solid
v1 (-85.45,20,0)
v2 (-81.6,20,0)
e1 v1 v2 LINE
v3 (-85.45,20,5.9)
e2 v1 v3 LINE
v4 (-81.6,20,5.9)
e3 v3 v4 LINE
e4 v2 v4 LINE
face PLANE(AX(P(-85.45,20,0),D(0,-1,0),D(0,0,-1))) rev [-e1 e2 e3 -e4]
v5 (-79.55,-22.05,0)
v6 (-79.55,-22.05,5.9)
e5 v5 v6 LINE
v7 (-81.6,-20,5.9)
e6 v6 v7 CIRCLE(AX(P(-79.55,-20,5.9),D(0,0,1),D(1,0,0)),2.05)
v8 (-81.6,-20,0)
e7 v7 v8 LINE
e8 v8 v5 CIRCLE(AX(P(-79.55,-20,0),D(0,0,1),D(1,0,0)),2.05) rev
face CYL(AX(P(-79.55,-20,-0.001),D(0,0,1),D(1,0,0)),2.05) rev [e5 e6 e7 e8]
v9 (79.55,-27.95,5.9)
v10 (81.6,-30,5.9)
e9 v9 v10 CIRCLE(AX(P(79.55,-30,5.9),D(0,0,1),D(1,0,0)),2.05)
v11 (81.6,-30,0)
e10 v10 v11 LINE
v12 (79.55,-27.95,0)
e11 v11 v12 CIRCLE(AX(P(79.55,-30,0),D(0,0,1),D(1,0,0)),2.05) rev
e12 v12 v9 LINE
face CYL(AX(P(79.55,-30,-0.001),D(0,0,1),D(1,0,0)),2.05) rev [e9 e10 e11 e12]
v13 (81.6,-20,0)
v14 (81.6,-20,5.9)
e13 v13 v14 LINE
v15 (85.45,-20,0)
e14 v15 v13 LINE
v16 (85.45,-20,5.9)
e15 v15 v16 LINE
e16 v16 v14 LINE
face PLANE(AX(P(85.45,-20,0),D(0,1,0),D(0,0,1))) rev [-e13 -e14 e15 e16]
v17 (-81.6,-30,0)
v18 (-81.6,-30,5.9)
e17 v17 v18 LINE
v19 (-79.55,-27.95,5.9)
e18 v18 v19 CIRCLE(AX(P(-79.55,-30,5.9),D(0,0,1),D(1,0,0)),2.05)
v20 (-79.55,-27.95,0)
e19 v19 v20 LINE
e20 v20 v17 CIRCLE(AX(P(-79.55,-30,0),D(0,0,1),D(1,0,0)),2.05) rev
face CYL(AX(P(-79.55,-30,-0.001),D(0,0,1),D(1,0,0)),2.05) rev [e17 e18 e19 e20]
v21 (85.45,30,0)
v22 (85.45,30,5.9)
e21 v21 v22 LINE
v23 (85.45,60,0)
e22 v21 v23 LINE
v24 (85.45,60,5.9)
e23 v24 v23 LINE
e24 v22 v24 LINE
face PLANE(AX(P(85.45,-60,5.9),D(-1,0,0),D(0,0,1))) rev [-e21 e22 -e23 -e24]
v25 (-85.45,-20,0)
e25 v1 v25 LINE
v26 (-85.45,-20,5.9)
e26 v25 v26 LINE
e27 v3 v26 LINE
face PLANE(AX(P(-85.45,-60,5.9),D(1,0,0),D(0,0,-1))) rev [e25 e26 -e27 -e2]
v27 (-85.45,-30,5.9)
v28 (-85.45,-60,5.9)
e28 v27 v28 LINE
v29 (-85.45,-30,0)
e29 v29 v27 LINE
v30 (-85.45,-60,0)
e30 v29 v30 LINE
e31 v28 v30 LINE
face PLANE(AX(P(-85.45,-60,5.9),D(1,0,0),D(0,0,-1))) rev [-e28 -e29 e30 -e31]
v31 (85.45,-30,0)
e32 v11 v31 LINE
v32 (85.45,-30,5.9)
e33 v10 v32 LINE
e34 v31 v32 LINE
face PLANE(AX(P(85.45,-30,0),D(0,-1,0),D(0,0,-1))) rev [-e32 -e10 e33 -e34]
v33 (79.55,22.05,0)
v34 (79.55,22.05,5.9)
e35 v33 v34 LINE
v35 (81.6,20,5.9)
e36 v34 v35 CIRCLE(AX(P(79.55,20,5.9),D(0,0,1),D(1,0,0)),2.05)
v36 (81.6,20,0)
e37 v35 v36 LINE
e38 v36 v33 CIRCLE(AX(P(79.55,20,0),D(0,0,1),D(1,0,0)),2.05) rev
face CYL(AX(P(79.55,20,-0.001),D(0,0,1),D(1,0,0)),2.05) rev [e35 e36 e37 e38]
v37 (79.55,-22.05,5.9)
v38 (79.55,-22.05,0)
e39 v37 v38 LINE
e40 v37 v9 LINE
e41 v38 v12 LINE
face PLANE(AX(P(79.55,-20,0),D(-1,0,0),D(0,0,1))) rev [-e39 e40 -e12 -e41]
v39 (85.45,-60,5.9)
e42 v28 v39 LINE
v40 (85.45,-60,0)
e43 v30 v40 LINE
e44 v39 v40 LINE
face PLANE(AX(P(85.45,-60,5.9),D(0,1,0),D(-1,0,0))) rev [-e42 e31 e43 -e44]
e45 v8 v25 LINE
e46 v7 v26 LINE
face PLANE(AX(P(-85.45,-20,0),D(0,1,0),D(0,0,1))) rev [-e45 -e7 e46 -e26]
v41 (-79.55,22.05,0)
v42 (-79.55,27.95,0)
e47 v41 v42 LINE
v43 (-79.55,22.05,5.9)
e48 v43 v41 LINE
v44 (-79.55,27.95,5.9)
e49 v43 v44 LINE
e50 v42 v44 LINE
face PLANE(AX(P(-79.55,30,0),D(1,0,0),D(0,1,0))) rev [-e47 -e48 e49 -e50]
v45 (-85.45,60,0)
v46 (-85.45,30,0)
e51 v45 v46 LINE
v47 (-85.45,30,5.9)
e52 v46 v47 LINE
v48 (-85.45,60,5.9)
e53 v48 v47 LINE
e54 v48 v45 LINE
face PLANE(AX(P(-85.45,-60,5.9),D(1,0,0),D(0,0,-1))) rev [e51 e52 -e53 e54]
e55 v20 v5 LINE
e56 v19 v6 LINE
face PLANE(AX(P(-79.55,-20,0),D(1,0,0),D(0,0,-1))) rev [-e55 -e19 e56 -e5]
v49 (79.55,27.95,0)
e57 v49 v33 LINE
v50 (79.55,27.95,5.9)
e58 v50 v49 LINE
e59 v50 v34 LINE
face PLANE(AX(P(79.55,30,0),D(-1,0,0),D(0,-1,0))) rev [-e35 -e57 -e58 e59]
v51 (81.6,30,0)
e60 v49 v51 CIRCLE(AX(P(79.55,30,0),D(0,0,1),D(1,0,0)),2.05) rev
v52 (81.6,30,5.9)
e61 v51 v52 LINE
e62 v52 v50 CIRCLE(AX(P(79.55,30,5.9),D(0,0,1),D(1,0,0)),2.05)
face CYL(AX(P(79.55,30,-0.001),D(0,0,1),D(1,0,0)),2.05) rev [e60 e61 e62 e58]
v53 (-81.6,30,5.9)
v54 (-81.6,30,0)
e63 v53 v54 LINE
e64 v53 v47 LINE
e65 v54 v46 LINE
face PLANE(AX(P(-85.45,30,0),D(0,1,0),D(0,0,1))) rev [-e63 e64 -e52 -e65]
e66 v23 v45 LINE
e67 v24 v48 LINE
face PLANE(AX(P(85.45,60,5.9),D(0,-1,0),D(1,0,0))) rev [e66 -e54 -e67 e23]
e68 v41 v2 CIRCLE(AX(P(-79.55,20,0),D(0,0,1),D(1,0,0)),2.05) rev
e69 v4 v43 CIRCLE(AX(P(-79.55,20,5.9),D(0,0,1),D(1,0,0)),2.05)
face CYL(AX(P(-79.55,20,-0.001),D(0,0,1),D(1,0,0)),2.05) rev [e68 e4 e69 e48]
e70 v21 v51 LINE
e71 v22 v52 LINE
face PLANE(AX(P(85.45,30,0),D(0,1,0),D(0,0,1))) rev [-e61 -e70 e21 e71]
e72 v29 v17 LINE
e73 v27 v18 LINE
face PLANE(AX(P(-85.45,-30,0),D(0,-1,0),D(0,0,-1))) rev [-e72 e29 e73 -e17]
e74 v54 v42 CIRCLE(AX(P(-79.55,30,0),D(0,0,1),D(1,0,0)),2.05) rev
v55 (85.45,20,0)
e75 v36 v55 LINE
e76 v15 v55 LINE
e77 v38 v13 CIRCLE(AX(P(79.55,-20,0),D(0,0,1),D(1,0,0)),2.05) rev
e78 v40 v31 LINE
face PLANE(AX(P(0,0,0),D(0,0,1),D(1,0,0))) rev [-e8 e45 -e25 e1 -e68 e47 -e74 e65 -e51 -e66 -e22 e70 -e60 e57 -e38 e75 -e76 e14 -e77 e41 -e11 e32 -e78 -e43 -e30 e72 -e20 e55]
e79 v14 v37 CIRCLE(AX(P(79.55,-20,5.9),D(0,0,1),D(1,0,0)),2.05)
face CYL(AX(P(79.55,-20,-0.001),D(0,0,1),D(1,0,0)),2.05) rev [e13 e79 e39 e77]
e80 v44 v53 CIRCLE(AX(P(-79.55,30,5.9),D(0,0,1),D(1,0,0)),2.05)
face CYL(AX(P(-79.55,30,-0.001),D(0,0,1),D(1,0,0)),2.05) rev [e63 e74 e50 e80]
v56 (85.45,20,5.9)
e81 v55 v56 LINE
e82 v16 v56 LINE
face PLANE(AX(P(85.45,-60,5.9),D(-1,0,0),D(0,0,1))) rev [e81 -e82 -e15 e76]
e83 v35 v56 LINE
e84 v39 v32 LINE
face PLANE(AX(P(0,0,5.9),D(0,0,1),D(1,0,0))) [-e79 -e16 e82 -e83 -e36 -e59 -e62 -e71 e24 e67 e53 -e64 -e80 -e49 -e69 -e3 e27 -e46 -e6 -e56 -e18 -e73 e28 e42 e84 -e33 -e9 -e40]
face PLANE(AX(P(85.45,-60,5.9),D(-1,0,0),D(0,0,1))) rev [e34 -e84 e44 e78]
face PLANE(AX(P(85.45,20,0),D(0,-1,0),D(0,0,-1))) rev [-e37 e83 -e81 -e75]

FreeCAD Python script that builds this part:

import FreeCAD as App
import Part
import Sketcher

V = App.Vector
Q = App.Units.Quantity


def add_polygon(sketch, points):
    """Adds a closed chain of lines whose ends are joined by coincident constraints."""
    first, n = sketch.GeometryCount, len(points)
    for a, b in zip(points, points[1:] + points[:1]):
        sketch.addGeometry(Part.LineSegment(App.Vector(*a, 0), App.Vector(*b, 0)), False)
    for i in range(n):
        sketch.addConstraint(Sketcher.Constraint("Coincident", first + i, 2, first + (i + 1) % n, 1))

doc = App.newDocument("Part")
body = doc.addObject("PartDesign::Body", "Body")

sketch1 = body.newObject("Sketcher::SketchObject", "Sketch")
sketch1.AttachmentSupport = (doc.getObject("XY_Plane"), [""])
sketch1.MapMode = "FlatFace"
add_polygon(sketch1, [(-85, 60), (-85, -60), (85, -60), (85, 60)])
sketch1.addConstraint(Sketcher.Constraint("Vertical", 0))
sketch1.addConstraint(Sketcher.Constraint("Horizontal", 1))
sketch1.addConstraint(Sketcher.Constraint("Vertical", 2))
sketch1.addConstraint(Sketcher.Constraint("Horizontal", 3))
sketch1.addConstraint(Sketcher.Constraint("Symmetric", 0, 2, 2, 2, -1, 1))
sketch1.addConstraint(Sketcher.Constraint("DistanceY", 0, 2, 0, 1, Q("120 mm")))
sketch1.addConstraint(Sketcher.Constraint("DistanceX", 1, 1, 1, 2, Q("170.9 mm")))
pad1 = body.newObject("PartDesign::Pad", "Pad")
pad1.Profile = sketch1
pad1.Length = 5.9

sketch2 = body.newObject("Sketcher::SketchObject", "Sketch001")
sketch2.AttachmentSupport = (doc.getObject("XY_Plane"), [""])
sketch2.MapMode = "FlatFace"
sketch2.AttachmentOffset = App.Placement(V(0, 0, 5.9), App.Rotation())
add_polygon(sketch2, [(80, 30), (80, 20), (85, 20), (85, 30)])
add_polygon(sketch2, [(80, -20), (80, -30), (85, -30), (85, -20)])
add_polygon(sketch2, [(-85, -20), (-85, -30), (-80, -30), (-80, -20)])
add_polygon(sketch2, [(-85, 30), (-85, 20), (-80, 20), (-80, 30)])
sketch2.addConstraint(Sketcher.Constraint("Vertical", 0))
sketch2.addConstraint(Sketcher.Constraint("Horizontal", 1))
sketch2.addConstraint(Sketcher.Constraint("Vertical", 2))
sketch2.addConstraint(Sketcher.Constraint("Horizontal", 3))
sketch2.addConstraint(Sketcher.Constraint("Vertical", 4))
sketch2.addConstraint(Sketcher.Constraint("Horizontal", 5))
sketch2.addConstraint(Sketcher.Constraint("Vertical", 6))
sketch2.addConstraint(Sketcher.Constraint("Horizontal", 7))
sketch2.addConstraint(Sketcher.Constraint("Vertical", 8))
sketch2.addConstraint(Sketcher.Constraint("Horizontal", 9))
sketch2.addConstraint(Sketcher.Constraint("Vertical", 10))
sketch2.addConstraint(Sketcher.Constraint("Horizontal", 11))
sketch2.addConstraint(Sketcher.Constraint("Vertical", 12))
sketch2.addConstraint(Sketcher.Constraint("Horizontal", 13))
sketch2.addConstraint(Sketcher.Constraint("Vertical", 14))
sketch2.addConstraint(Sketcher.Constraint("Horizontal", 15))
sketch2.addConstraint(Sketcher.Constraint("Symmetric", 2, 2, 8, 2, -1, 1))
sketch2.addConstraint(Sketcher.Constraint("Symmetric", 0, 2, 10, 2, -1, 1))
sketch2.addConstraint(Sketcher.Constraint("Symmetric", 6, 2, 12, 2, -1, 1))
sketch2.addConstraint(Sketcher.Constraint("Symmetric", 4, 2, 14, 2, -1, 1))
sketch2.addConstraint(Sketcher.Constraint("Symmetric", 5, 2, 8, 2, -2))
sketch2.addConstraint(Sketcher.Constraint("Symmetric", 7, 2, 10, 2, -2))
sketch2.addConstraint(Sketcher.Constraint("DistanceY", 0, 2, 0, 1, Q("10 mm")))
sketch2.addConstraint(Sketcher.Constraint("DistanceX", 1, 1, 1, 2, Q("5.9 mm")))
sketch2.addConstraint(Sketcher.Constraint("DistanceY", -1, 1, 0, 2, Q("20 mm")))
sketch2.addConstraint(Sketcher.Constraint("DistanceX", 8, 2, 4, 2, Q("165 mm")))
pocket1 = body.newObject("PartDesign::Pocket", "Pocket")
pocket1.Profile = sketch2
pocket1.Type = "ThroughAll"

sketch3 = body.newObject("Sketcher::SketchObject", "Sketch002")
sketch3.AttachmentSupport = (doc.getObject("XY_Plane"), [""])
sketch3.MapMode = "FlatFace"
sketch3.AttachmentOffset = App.Placement(V(0, 0, 5.9), App.Rotation())
sketch3.addGeometry(Part.Circle(V(-79.5, 30, 0), V(0, 0, 1), 2), False)
sketch3.addConstraint(Sketcher.Constraint("Diameter", 0, Q("4.1 mm")))
sketch3.addConstraint(Sketcher.Constraint("DistanceY", -1, 1, 0, 3, Q("30 mm")))
sketch3.addConstraint(Sketcher.Constraint("DistanceX", 0, 3, -1, 1, Q("79.55 mm")))
pocket2 = body.newObject("PartDesign::Pocket", "Pocket001")
pocket2.Profile = sketch3
pocket2.Type = "UpToFirst"

sketch4 = body.newObject("Sketcher::SketchObject", "Sketch003")
sketch4.AttachmentSupport = (doc.getObject("XY_Plane"), [""])
sketch4.MapMode = "FlatFace"
sketch4.AttachmentOffset = App.Placement(V(0, 0, 5.9), App.Rotation())
sketch4.addGeometry(Part.Circle(V(-79.5, 20, 0), V(0, 0, 1), 2), False)
sketch4.addConstraint(Sketcher.Constraint("Diameter", 0, Q("4.1 mm")))
sketch4.addConstraint(Sketcher.Constraint("DistanceY", -1, 1, 0, 3, Q("20 mm")))
sketch4.addConstraint(Sketcher.Constraint("DistanceX", 0, 3, -1, 1, Q("79.55 mm")))
pocket3 = body.newObject("PartDesign::Pocket", "Pocket002")
pocket3.Profile = sketch4
pocket3.Type = "UpToFirst"

sketch5 = body.newObject("Sketcher::SketchObject", "Sketch004")
sketch5.AttachmentSupport = (doc.getObject("XY_Plane"), [""])
sketch5.MapMode = "FlatFace"
sketch5.AttachmentOffset = App.Placement(V(0, 0, 5.9), App.Rotation())
sketch5.addGeometry(Part.Circle(V(-79.5, -20, 0), V(0, 0, 1), 2), False)
sketch5.addConstraint(Sketcher.Constraint("Diameter", 0, Q("4.1 mm")))
sketch5.addConstraint(Sketcher.Constraint("DistanceY", 0, 3, -1, 1, Q("20 mm")))
sketch5.addConstraint(Sketcher.Constraint("DistanceX", 0, 3, -1, 1, Q("79.55 mm")))
pocket4 = body.newObject("PartDesign::Pocket", "Pocket003")
pocket4.Profile = sketch5
pocket4.Type = "UpToFirst"

sketch6 = body.newObject("Sketcher::SketchObject", "Sketch005")
sketch6.AttachmentSupport = (doc.getObject("XY_Plane"), [""])
sketch6.MapMode = "FlatFace"
sketch6.AttachmentOffset = App.Placement(V(0, 0, 5.9), App.Rotation())
sketch6.addGeometry(Part.Circle(V(-79.5, -30, 0), V(0, 0, 1), 2), False)
sketch6.addConstraint(Sketcher.Constraint("Diameter", 0, Q("4.1 mm")))
sketch6.addConstraint(Sketcher.Constraint("DistanceY", 0, 3, -1, 1, Q("30 mm")))
sketch6.addConstraint(Sketcher.Constraint("DistanceX", 0, 3, -1, 1, Q("79.55 mm")))
pocket5 = body.newObject("PartDesign::Pocket", "Pocket004")
pocket5.Profile = sketch6
pocket5.Type = "UpToFirst"

sketch7 = body.newObject("Sketcher::SketchObject", "Sketch006")
sketch7.AttachmentSupport = (doc.getObject("XY_Plane"), [""])
sketch7.MapMode = "FlatFace"
sketch7.AttachmentOffset = App.Placement(V(0, 0, 5.9), App.Rotation())
sketch7.addGeometry(Part.Circle(V(79.5, -20, 0), V(0, 0, 1), 2), False)
sketch7.addConstraint(Sketcher.Constraint("Diameter", 0, Q("4.1 mm")))
sketch7.addConstraint(Sketcher.Constraint("DistanceY", 0, 3, -1, 1, Q("20 mm")))
sketch7.addConstraint(Sketcher.Constraint("DistanceX", -1, 1, 0, 3, Q("79.55 mm")))
pocket6 = body.newObject("PartDesign::Pocket", "Pocket005")
pocket6.Profile = sketch7
pocket6.Type = "UpToFirst"

sketch8 = body.newObject("Sketcher::SketchObject", "Sketch007")
sketch8.AttachmentSupport = (doc.getObject("XY_Plane"), [""])
sketch8.MapMode = "FlatFace"
sketch8.AttachmentOffset = App.Placement(V(0, 0, 5.9), App.Rotation())
sketch8.addGeometry(Part.Circle(V(79.5, -30, 0), V(0, 0, 1), 2), False)
sketch8.addConstraint(Sketcher.Constraint("Diameter", 0, Q("4.1 mm")))
sketch8.addConstraint(Sketcher.Constraint("DistanceY", 0, 3, -1, 1, Q("30 mm")))
sketch8.addConstraint(Sketcher.Constraint("DistanceX", -1, 1, 0, 3, Q("79.55 mm")))
pocket7 = body.newObject("PartDesign::Pocket", "Pocket006")
pocket7.Profile = sketch8
pocket7.Type = "UpToFirst"

sketch9 = body.newObject("Sketcher::SketchObject", "Sketch008")
sketch9.AttachmentSupport = (doc.getObject("XY_Plane"), [""])
sketch9.MapMode = "FlatFace"
sketch9.AttachmentOffset = App.Placement(V(0, 0, 5.9), App.Rotation())
sketch9.addGeometry(Part.Circle(V(79.5, 20, 0), V(0, 0, 1), 2), False)
sketch9.addConstraint(Sketcher.Constraint("Diameter", 0, Q("4.1 mm")))
sketch9.addConstraint(Sketcher.Constraint("DistanceY", -1, 1, 0, 3, Q("20 mm")))
sketch9.addConstraint(Sketcher.Constraint("DistanceX", -1, 1, 0, 3, Q("79.55 mm")))
pocket8 = body.newObject("PartDesign::Pocket", "Pocket007")
pocket8.Profile = sketch9
pocket8.Type = "UpToFirst"

sketch10 = body.newObject("Sketcher::SketchObject", "Sketch009")
sketch10.AttachmentSupport = (doc.getObject("XY_Plane"), [""])
sketch10.MapMode = "FlatFace"
sketch10.AttachmentOffset = App.Placement(V(0, 0, 5.9), App.Rotation())
sketch10.addGeometry(Part.Circle(V(79.5, 30, 0), V(0, 0, 1), 2), False)
sketch10.addConstraint(Sketcher.Constraint("Diameter", 0, Q("4.1 mm")))
sketch10.addConstraint(Sketcher.Constraint("DistanceY", -1, 1, 0, 3, Q("30 mm")))
sketch10.addConstraint(Sketcher.Constraint("DistanceX", -1, 1, 0, 3, Q("79.55 mm")))
pocket9 = body.newObject("PartDesign::Pocket", "Pocket008")
pocket9.Profile = sketch10
pocket9.Type = "UpToFirst"

doc.recompute()
